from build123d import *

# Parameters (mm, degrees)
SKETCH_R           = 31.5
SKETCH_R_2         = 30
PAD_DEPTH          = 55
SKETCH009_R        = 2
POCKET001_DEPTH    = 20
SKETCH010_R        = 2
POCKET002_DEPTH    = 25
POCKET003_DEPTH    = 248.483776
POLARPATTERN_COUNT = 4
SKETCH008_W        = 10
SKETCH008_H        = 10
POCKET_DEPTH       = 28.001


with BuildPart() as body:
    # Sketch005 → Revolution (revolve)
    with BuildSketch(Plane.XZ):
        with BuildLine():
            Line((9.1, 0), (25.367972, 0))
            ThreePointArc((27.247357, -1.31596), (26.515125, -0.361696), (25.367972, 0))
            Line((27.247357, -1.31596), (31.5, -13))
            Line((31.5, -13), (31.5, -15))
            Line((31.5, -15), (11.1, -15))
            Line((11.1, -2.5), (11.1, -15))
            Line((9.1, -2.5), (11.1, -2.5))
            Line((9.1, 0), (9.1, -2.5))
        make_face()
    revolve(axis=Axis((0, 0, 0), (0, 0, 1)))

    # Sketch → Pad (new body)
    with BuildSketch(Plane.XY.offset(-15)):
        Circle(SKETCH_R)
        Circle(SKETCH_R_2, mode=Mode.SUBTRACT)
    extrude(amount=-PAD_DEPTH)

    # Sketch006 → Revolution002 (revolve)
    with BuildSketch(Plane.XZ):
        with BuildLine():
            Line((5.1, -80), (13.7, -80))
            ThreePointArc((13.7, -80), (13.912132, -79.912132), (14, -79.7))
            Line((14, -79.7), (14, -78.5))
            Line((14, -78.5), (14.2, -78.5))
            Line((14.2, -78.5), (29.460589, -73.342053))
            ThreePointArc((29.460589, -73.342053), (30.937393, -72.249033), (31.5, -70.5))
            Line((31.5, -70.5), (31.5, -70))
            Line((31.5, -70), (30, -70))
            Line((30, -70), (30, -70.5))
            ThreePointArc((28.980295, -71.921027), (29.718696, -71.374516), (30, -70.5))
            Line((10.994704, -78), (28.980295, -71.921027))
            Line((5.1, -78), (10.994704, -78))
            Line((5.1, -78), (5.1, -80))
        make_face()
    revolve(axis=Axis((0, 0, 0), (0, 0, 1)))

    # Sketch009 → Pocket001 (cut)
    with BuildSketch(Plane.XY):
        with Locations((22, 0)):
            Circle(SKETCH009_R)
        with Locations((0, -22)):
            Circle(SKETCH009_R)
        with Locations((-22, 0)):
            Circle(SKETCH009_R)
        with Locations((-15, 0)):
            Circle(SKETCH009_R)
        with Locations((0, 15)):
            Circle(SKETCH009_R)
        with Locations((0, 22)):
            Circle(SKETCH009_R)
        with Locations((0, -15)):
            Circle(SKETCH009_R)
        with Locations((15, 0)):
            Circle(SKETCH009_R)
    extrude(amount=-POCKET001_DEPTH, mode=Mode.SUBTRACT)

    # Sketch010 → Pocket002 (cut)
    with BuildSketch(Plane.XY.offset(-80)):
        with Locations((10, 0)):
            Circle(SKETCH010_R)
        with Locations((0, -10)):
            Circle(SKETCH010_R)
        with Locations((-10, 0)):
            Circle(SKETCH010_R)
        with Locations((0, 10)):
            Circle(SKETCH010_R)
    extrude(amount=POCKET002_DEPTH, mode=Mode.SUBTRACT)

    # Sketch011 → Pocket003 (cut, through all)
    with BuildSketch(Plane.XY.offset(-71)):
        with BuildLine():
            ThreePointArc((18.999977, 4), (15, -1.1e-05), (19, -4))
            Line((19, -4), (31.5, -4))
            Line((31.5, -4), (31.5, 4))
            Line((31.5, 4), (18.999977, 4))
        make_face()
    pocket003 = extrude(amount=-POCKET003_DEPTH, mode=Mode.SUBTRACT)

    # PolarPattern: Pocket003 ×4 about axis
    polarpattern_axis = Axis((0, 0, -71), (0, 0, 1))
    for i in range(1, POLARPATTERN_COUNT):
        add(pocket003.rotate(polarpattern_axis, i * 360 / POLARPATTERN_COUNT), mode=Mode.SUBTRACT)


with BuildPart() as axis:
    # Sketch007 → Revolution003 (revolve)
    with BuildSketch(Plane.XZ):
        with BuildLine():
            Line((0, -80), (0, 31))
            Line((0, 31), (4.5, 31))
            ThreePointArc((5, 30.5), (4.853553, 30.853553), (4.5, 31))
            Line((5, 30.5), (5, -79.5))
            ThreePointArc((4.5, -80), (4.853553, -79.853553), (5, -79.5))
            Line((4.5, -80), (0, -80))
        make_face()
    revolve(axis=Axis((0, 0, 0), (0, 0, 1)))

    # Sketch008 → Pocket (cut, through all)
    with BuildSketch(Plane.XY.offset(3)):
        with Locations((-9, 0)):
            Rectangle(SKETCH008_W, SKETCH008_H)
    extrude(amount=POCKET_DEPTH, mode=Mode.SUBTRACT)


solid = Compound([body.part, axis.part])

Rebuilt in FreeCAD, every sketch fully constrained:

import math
import FreeCAD as App
import Part
import Sketcher
Q = App.Units.Quantity


def add_polygon(sketch, points):
    """Adds a closed chain of lines whose ends are joined by coincident constraints."""
    first, n = sketch.GeometryCount, len(points)
    for a, b in zip(points, points[1:] + points[:1]):
        sketch.addGeometry(Part.LineSegment(App.Vector(*a, 0), App.Vector(*b, 0)), False)
    for i in range(n):
        sketch.addConstraint(Sketcher.Constraint("Coincident", first + i, 2, first + (i + 1) % n, 1))

doc = App.newDocument("Part")
params = doc.addObject("Spreadsheet::Sheet", "Params")
for row, (alias, value) in enumerate([
    ("sketch1_radius", "1.999999 mm"),
    ("sketch1_width", "2 mm"),
    ("sketch1_width2", "20.4 mm"),
    ("sketch1_height", "2.5 mm"),
    ("sketch1_height2", "12.5 mm"),
    ("revolution_angle", "360 deg"),
    ("sketch2_diameter", "63 mm"),
    ("sketch2_diameter2", "60 mm"),
    ("pad1_length", "55 mm"),
    ("sketch3_radius", "0.3 mm"),
    ("sketch3_height", "2 mm"),
    ("sketch3_width", "8.6 mm"),
    ("sketch3_width2", "0.2 mm"),
    ("sketch3_width3", "1.5 mm"),
    ("revolution2_angle", "360 deg"),
    ("sketch4_diameter", "4 mm"),
    ("pocket1_length", "20 mm"),
    ("sketch5_diameter", "4 mm"),
    ("pocket2_length", "25 mm"),
    ("sketch6_radius", "4 mm"),
    ("sketch6_width", "12.5 mm"),
    ("sketch7_radius", "0.500001 mm"),
    ("sketch7_height", "111 mm"),
    ("sketch7_height2", "110 mm"),
    ("sketch7_width", "4.5 mm"),
    ("revolution3_angle", "360 deg"),
    ("sketch8_width", "10 mm"),
], start=1):
    params.set(f"A{row}", alias)
    params.set(f"B{row}", "=" + value)
    params.setAlias(f"B{row}", alias)

body = doc.addObject("PartDesign::Body", "Body")

# Sketch on XZ plane
sketch1 = body.newObject("Sketcher::SketchObject", "Sketch")
sketch1.AttachmentSupport = (doc.getObject("XZ_Plane"), [""])
sketch1.MapMode = "FlatFace"
sketch1.addGeometry([
    Part.LineSegment(App.Vector(25.4, 0, 0), App.Vector(9.1, 0, 0)),  # 0
    Part.LineSegment(App.Vector(9.1, 0, 0), App.Vector(9.1, -2.5, 0)),  # 1
    Part.LineSegment(App.Vector(9.1, -2.5, 0), App.Vector(11.1, -2.5, 0)),  # 2
    Part.LineSegment(App.Vector(11.1, -2.5, 0), App.Vector(11.1, -15, 0)),  # 3
    Part.LineSegment(App.Vector(11.1, -15, 0), App.Vector(31.5, -15, 0)),  # 4
    Part.LineSegment(App.Vector(31.5, -15, 0), App.Vector(31.5, -13, 0)),  # 5
    Part.LineSegment(App.Vector(31.5, -13, 0), App.Vector(27.2, -1.3, 0)),  # 6
    Part.ArcOfCircle(Part.Circle(App.Vector(25.4, -2, 0), App.Vector(0, 0, 1), 2), math.radians(20), math.radians(90)),  # 7
], False)
sketch1.addConstraint([
    Sketcher.Constraint("Coincident", 0, 2, 1, 1),
    Sketcher.Constraint("Coincident", 1, 2, 2, 1),
    Sketcher.Constraint("Coincident", 2, 2, 3, 1),
    Sketcher.Constraint("Coincident", 3, 2, 4, 1),
    Sketcher.Constraint("Coincident", 4, 2, 5, 1),
    Sketcher.Constraint("Coincident", 5, 2, 6, 1),
    Sketcher.Constraint("Tangent", 6, 2, 7, 1),
    Sketcher.Constraint("Tangent", 7, 2, 0, 1),
    Sketcher.Constraint("Horizontal", 0),
    Sketcher.Constraint("Vertical", 1),
    Sketcher.Constraint("Horizontal", 2),
    Sketcher.Constraint("Vertical", 3),
    Sketcher.Constraint("Horizontal", 4),
    Sketcher.Constraint("Vertical", 5),
    Sketcher.Constraint("PointOnObject", 0, 2, -1),
    Sketcher.Constraint("Equal", 2, 5),
    Sketcher.Constraint("Radius", 7, Q("1.999999 mm")),
    Sketcher.Constraint("DistanceX", 2, 1, 2, 2, Q("2 mm")),
    Sketcher.Constraint("Angle", 6, Q("110.000001 deg")),
    Sketcher.Constraint("DistanceX", 4, 1, 4, 2, Q("20.4 mm")),
    Sketcher.Constraint("DistanceY", 1, 2, 1, 1, Q("2.5 mm")),
    Sketcher.Constraint("DistanceY", 3, 2, 3, 1, Q("12.5 mm")),
    Sketcher.Constraint("DistanceX", -1, 1, 0, 2, Q("9.1 mm")),
])
sketch1.setExpression("Constraints[16]", "Params.sketch1_radius")
sketch1.setExpression("Constraints[17]", "Params.sketch1_width")
sketch1.setExpression("Constraints[19]", "Params.sketch1_width2")
sketch1.setExpression("Constraints[20]", "Params.sketch1_height")
sketch1.setExpression("Constraints[21]", "Params.sketch1_height2")
revolution = body.newObject("PartDesign::Revolution", "Revolution")
revolution.Profile = sketch1
revolution.ReferenceAxis = (sketch1, ["V_Axis"])
revolution.setExpression("Angle", "Params.revolution_angle")

# Sketch on XY plane
sketch2 = body.newObject("Sketcher::SketchObject", "Sketch001")
sketch2.AttachmentSupport = (doc.getObject("XY_Plane"), [""])
sketch2.MapMode = "FlatFace"
sketch2.AttachmentOffset = App.Placement(App.Vector(0, 0, -15), App.Rotation())
sketch2.addGeometry([
    Part.Circle(App.Vector(0, 0, 0), App.Vector(0, 0, 1), 32),
    Part.Circle(App.Vector(0, 0, 0), App.Vector(0, 0, 1), 30),
], False)
sketch2.addConstraint([
    Sketcher.Constraint("Coincident", 0, 3, -1, 1),
    Sketcher.Constraint("Coincident", 1, 3, -1, 1),
    Sketcher.Constraint("Diameter", 0, Q("63 mm")),
    Sketcher.Constraint("Diameter", 1, Q("60 mm")),
])
sketch2.setExpression("Constraints[2]", "Params.sketch2_diameter")
sketch2.setExpression("Constraints[3]", "Params.sketch2_diameter2")
pad1 = body.newObject("PartDesign::Pad", "Pad")
pad1.Profile = sketch2
pad1.setExpression("Length", "Params.pad1_length")
pad1.Reversed = True

# Sketch on XZ plane
sketch3 = body.newObject("Sketcher::SketchObject", "Sketch002")
sketch3.AttachmentSupport = (doc.getObject("XZ_Plane"), [""])
sketch3.MapMode = "FlatFace"
sketch3.addGeometry([
    Part.LineSegment(App.Vector(5.1, -80, 0), App.Vector(13.7, -80, 0)),  # 0
    Part.ArcOfCircle(Part.Circle(App.Vector(13.7, -79.7, 0), App.Vector(0, 0, 1), 0.3), math.radians(-90), math.radians(0)),  # 1
    Part.LineSegment(App.Vector(14, -79.7, 0), App.Vector(14, -78.5, 0)),  # 2
    Part.LineSegment(App.Vector(14, -78.5, 0), App.Vector(14.2, -78.5, 0)),  # 3
    Part.LineSegment(App.Vector(14.2, -78.5, 0), App.Vector(29.46, -73.34, 0)),  # 4
    Part.ArcOfCircle(Part.Circle(App.Vector(28.5, -70.5, 0), App.Vector(0, 0, 1), 3), math.radians(-71), math.radians(0)),  # 5
    Part.LineSegment(App.Vector(31.5, -70.5, 0), App.Vector(31.5, -70, 0)),  # 6
    Part.LineSegment(App.Vector(31.5, -70, 0), App.Vector(30, -70, 0)),  # 7
    Part.LineSegment(App.Vector(30, -70, 0), App.Vector(30, -70.5, 0)),  # 8
    Part.ArcOfCircle(Part.Circle(App.Vector(28.5, -70.5, 0), App.Vector(0, 0, 1), 1.5), math.radians(-71), math.radians(0)),  # 9
    Part.LineSegment(App.Vector(28.98, -71.92, 0), App.Vector(10.99, -78, 0)),  # 10
    Part.LineSegment(App.Vector(10.99, -78, 0), App.Vector(5.1, -78, 0)),  # 11
    Part.LineSegment(App.Vector(5.1, -78, 0), App.Vector(5.1, -80, 0)),  # 12
], False)
sketch3.addConstraint([
    Sketcher.Constraint("Tangent", 0, 2, 1, 1),
    Sketcher.Constraint("Tangent", 1, 2, 2, 1),
    Sketcher.Constraint("Coincident", 2, 2, 3, 1),
    Sketcher.Constraint("Coincident", 3, 2, 4, 1),
    Sketcher.Constraint("Tangent", 4, 2, 5, 1),
    Sketcher.Constraint("Tangent", 5, 2, 6, 1),
    Sketcher.Constraint("Coincident", 6, 2, 7, 1),
    Sketcher.Constraint("Coincident", 7, 2, 8, 1),
    Sketcher.Constraint("Tangent", 8, 2, 9, 2),
    Sketcher.Constraint("Tangent", 9, 1, 10, 1),
    Sketcher.Constraint("Coincident", 10, 2, 11, 1),
    Sketcher.Constraint("Coincident", 11, 2, 12, 1),
    Sketcher.Constraint("Coincident", 12, 2, 0, 1),
    Sketcher.Constraint("Horizontal", 0),
    Sketcher.Constraint("Vertical", 2),
    Sketcher.Constraint("Horizontal", 3),
    Sketcher.Constraint("Vertical", 6),
    Sketcher.Constraint("Horizontal", 7),
    Sketcher.Constraint("Vertical", 8),
    Sketcher.Constraint("Horizontal", 11),
    Sketcher.Constraint("Vertical", 12),
    Sketcher.Constraint("Coincident", 9, 3, 5, 3),
    Sketcher.Constraint("Parallel", 4, 10),
    Sketcher.Constraint("Radius", 1, Q("0.3 mm")),
    Sketcher.Constraint("DistanceY", 12, 2, 12, 1, Q("2 mm")),
    Sketcher.Constraint("DistanceX", 0, 1, 0, 2, Q("8.6 mm")),
    Sketcher.Constraint("DistanceX", 3, 1, 3, 2, Q("0.2 mm")),
    Sketcher.Constraint("DistanceX", 7, 2, 7, 1, Q("1.5 mm")),
    Sketcher.Constraint("DistanceY", 2, 1, 2, 2, Q("1.2 mm")),
    Sketcher.Constraint("DistanceY", 6, 1, 6, 2, Q("0.5 mm")),
    Sketcher.Constraint("DistanceY", 0, 2, -1, 1, Q("80 mm")),
    Sketcher.Constraint("DistanceX", -1, 1, 1, 2, Q("14 mm")),
    Sketcher.Constraint("DistanceY", 6, 2, -1, 1, Q("70 mm")),
    Sketcher.Constraint("DistanceX", -1, 1, 7, 2, Q("30 mm")),
    Sketcher.Constraint("Radius", 5, Q("2.999998 mm")),
])
sketch3.setExpression("Constraints[23]", "Params.sketch3_radius")
sketch3.setExpression("Constraints[24]", "Params.sketch3_height")
sketch3.setExpression("Constraints[25]", "Params.sketch3_width")
sketch3.setExpression("Constraints[26]", "Params.sketch3_width2")
sketch3.setExpression("Constraints[27]", "Params.sketch3_width3")
revolution2 = body.newObject("PartDesign::Revolution", "Revolution001")
revolution2.Profile = sketch3
revolution2.ReferenceAxis = (sketch3, ["V_Axis"])
revolution2.setExpression("Angle", "Params.revolution2_angle")

# Sketch on XY plane
sketch4 = body.newObject("Sketcher::SketchObject", "Sketch003")
sketch4.AttachmentSupport = (doc.getObject("XY_Plane"), [""])
sketch4.MapMode = "FlatFace"
sketch4.addGeometry([
    Part.Circle(App.Vector(22, 0, 0), App.Vector(0, 0, 1), 2),  # 0
    Part.Circle(App.Vector(0, -22, 0), App.Vector(0, 0, 1), 2),  # 1
    Part.Circle(App.Vector(-22, 0, 0), App.Vector(0, 0, 1), 2),  # 2
    Part.Circle(App.Vector(-15, 0, 0), App.Vector(0, 0, 1), 2),  # 3
    Part.Circle(App.Vector(0, 15, 0), App.Vector(0, 0, 1), 2),  # 4
    Part.Circle(App.Vector(0, 22, 0), App.Vector(0, 0, 1), 2),  # 5
    Part.Circle(App.Vector(0, -15, 0), App.Vector(0, 0, 1), 2),  # 6
    Part.Circle(App.Vector(15, 0, 0), App.Vector(0, 0, 1), 2),  # 7
], False)
sketch4.addConstraint([
    Sketcher.Constraint("Equal", 0, 1),
    Sketcher.Constraint("Equal", 1, 2),
    Sketcher.Constraint("Equal", 2, 3),
    Sketcher.Constraint("Equal", 3, 4),
    Sketcher.Constraint("Equal", 4, 5),
    Sketcher.Constraint("Equal", 5, 6),
    Sketcher.Constraint("Equal", 6, 7),
    Sketcher.Constraint("Symmetric", 0, 3, 2, 3, -1, 1),
    Sketcher.Constraint("Symmetric", 1, 3, 5, 3, -1, 1),
    Sketcher.Constraint("Symmetric", 4, 3, 6, 3, -1, 1),
    Sketcher.Constraint("Symmetric", 3, 3, 7, 3, -1, 1),
    Sketcher.Constraint("PointOnObject", 0, 3, -1),
    Sketcher.Constraint("PointOnObject", 1, 3, -2),
    Sketcher.Constraint("PointOnObject", 3, 3, -1),
    Sketcher.Constraint("PointOnObject", 4, 3, -2),
    Sketcher.Constraint("Diameter", 0, Q("4 mm")),
    Sketcher.Constraint("DistanceX", -1, 1, 0, 3, Q("22 mm")),
    Sketcher.Constraint("DistanceY", 1, 3, -1, 1, Q("22 mm")),
    Sketcher.Constraint("DistanceX", 3, 3, -1, 1, Q("15 mm")),
    Sketcher.Constraint("DistanceY", -1, 1, 4, 3, Q("15 mm")),
])
sketch4.setExpression("Constraints[15]", "Params.sketch4_diameter")
pocket1 = body.newObject("PartDesign::Pocket", "Pocket")
pocket1.Profile = sketch4
pocket1.setExpression("Length", "Params.pocket1_length")

# Sketch on XY plane
sketch5 = body.newObject("Sketcher::SketchObject", "Sketch004")
sketch5.AttachmentSupport = (doc.getObject("XY_Plane"), [""])
sketch5.MapMode = "FlatFace"
sketch5.AttachmentOffset = App.Placement(App.Vector(0, 0, -80), App.Rotation())
sketch5.addGeometry([
    Part.Circle(App.Vector(10, 0, 0), App.Vector(0, 0, 1), 2),
    Part.Circle(App.Vector(0, -10, 0), App.Vector(0, 0, 1), 2),
    Part.Circle(App.Vector(-10, 0, 0), App.Vector(0, 0, 1), 2),
    Part.Circle(App.Vector(0, 10, 0), App.Vector(0, 0, 1), 2),
], False)
sketch5.addConstraint([
    Sketcher.Constraint("Equal", 0, 1),
    Sketcher.Constraint("Equal", 1, 2),
    Sketcher.Constraint("Equal", 2, 3),
    Sketcher.Constraint("Symmetric", 0, 3, 2, 3, -1, 1),
    Sketcher.Constraint("Symmetric", 1, 3, 3, 3, -1, 1),
    Sketcher.Constraint("PointOnObject", 0, 3, -1),
    Sketcher.Constraint("PointOnObject", 1, 3, -2),
    Sketcher.Constraint("Diameter", 0, Q("4 mm")),
    Sketcher.Constraint("DistanceX", -1, 1, 0, 3, Q("10 mm")),
    Sketcher.Constraint("DistanceY", 1, 3, -1, 1, Q("10 mm")),
])
sketch5.setExpression("Constraints[7]", "Params.sketch5_diameter")
pocket2 = body.newObject("PartDesign::Pocket", "Pocket001")
pocket2.Profile = sketch5
pocket2.setExpression("Length", "Params.pocket2_length")
pocket2.Reversed = True

# Sketch on XY plane
sketch6 = body.newObject("Sketcher::SketchObject", "Sketch005")
sketch6.AttachmentSupport = (doc.getObject("XY_Plane"), [""])
sketch6.MapMode = "FlatFace"
sketch6.AttachmentOffset = App.Placement(App.Vector(0, 0, -71), App.Rotation())
sketch6.addGeometry([
    Part.ArcOfCircle(Part.Circle(App.Vector(19, 0, 0), App.Vector(0, 0, 1), 4), math.radians(90), math.radians(270)),
    Part.LineSegment(App.Vector(19, -4, 0), App.Vector(31.5, -4, 0)),
    Part.LineSegment(App.Vector(31.5, -4, 0), App.Vector(31.5, 4, 0)),
    Part.LineSegment(App.Vector(31.5, 4, 0), App.Vector(19, 4, 0)),
], False)
sketch6.addConstraint([
    Sketcher.Constraint("Tangent", 0, 2, 1, 1),
    Sketcher.Constraint("Coincident", 1, 2, 2, 1),
    Sketcher.Constraint("Coincident", 2, 2, 3, 1),
    Sketcher.Constraint("Coincident", 3, 2, 0, 1),
    Sketcher.Constraint("Horizontal", 1),
    Sketcher.Constraint("Vertical", 2),
    Sketcher.Constraint("Horizontal", 3),
    Sketcher.Constraint("PointOnObject", 0, 3, -1),
    Sketcher.Constraint("Radius", 0, Q("4 mm")),
    Sketcher.Constraint("DistanceX", 1, 1, 1, 2, Q("12.5 mm")),
    Sketcher.Constraint("DistanceX", -1, 1, 0, 3, Q("19 mm")),
    Sketcher.Constraint("DistanceX", 3, 2, 3, 1, Q("12.500023 mm")),
])
sketch6.setExpression("Constraints[8]", "Params.sketch6_radius")
sketch6.setExpression("Constraints[9]", "Params.sketch6_width")
pocket3 = body.newObject("PartDesign::Pocket", "Pocket002")
pocket3.Profile = sketch6
pocket3.Type = "ThroughAll"
doc.recompute()

polarpattern = body.newObject("PartDesign::PolarPattern", "PolarPattern")
polarpattern.Originals = [pocket3]
polarpattern.Axis = (doc.getObject("Z_Axis"), [""])
polarpattern.Angle = 360
polarpattern.Occurrences = 4
body.Tip = polarpattern
body2 = doc.addObject("PartDesign::Body", "Body001")

# Sketch on XZ plane
sketch7 = body2.newObject("Sketcher::SketchObject", "Sketch006")
sketch7.AttachmentSupport = (doc.getObject("XZ_Plane001"), [""])
sketch7.MapMode = "FlatFace"
sketch7.addGeometry([
    Part.LineSegment(App.Vector(0, 31, 0), App.Vector(0, -80, 0)),  # 0
    Part.LineSegment(App.Vector(0, -80, 0), App.Vector(4.5, -80, 0)),  # 1
    Part.ArcOfCircle(Part.Circle(App.Vector(4.5, -79.5, 0), App.Vector(0, 0, 1), 0.5), math.radians(-90), math.radians(0)),  # 2
    Part.LineSegment(App.Vector(5, -79.5, 0), App.Vector(5, 30.5, 0)),  # 3
    Part.ArcOfCircle(Part.Circle(App.Vector(4.5, 30.5, 0), App.Vector(0, 0, 1), 0.5), math.radians(0), math.radians(90)),  # 4
    Part.LineSegment(App.Vector(4.5, 31, 0), App.Vector(0, 31, 0)),  # 5
], False)
sketch7.addConstraint([
    Sketcher.Constraint("Coincident", 0, 2, 1, 1),
    Sketcher.Constraint("Coincident", 1, 2, 2, 1),
    Sketcher.Constraint("Coincident", 2, 2, 3, 1),
    Sketcher.Constraint("Coincident", 3, 2, 4, 1),
    Sketcher.Constraint("Coincident", 4, 2, 5, 1),
    Sketcher.Constraint("Coincident", 5, 2, 0, 1),
    Sketcher.Constraint("Vertical", 0),
    Sketcher.Constraint("Horizontal", 1),
    Sketcher.Constraint("Vertical", 3),
    Sketcher.Constraint("Horizontal", 5),
    Sketcher.Constraint("Equal", 2, 4),
    Sketcher.Constraint("PointOnObject", 0, 2, -2),
    Sketcher.Constraint("Horizontal", 4, 3, 3, 2),
    Sketcher.Constraint("Vertical", 4, 3, 1, 2),
    Sketcher.Constraint("Vertical", 1, 2, 4, 2),
    Sketcher.Constraint("Radius", 2, Q("0.500001 mm")),
    Sketcher.Constraint("DistanceY", 0, 2, 0, 1, Q("111 mm")),
    Sketcher.Constraint("DistanceY", 3, 1, 3, 2, Q("110 mm")),
    Sketcher.Constraint("DistanceX", 1, 1, 1, 2, Q("4.5 mm")),
    Sketcher.Constraint("DistanceY", 0, 2, -1, 1, Q("80 mm")),
])
sketch7.setExpression("Constraints[15]", "Params.sketch7_radius")
sketch7.setExpression("Constraints[16]", "Params.sketch7_height")
sketch7.setExpression("Constraints[17]", "Params.sketch7_height2")
sketch7.setExpression("Constraints[18]", "Params.sketch7_width")
revolution3 = body2.newObject("PartDesign::Revolution", "Revolution002")
revolution3.Profile = sketch7
revolution3.ReferenceAxis = (sketch7, ["V_Axis"])
revolution3.setExpression("Angle", "Params.revolution3_angle")

# Sketch on XY plane
sketch8 = body2.newObject("Sketcher::SketchObject", "Sketch007")
sketch8.AttachmentSupport = (doc.getObject("XY_Plane001"), [""])
sketch8.MapMode = "FlatFace"
sketch8.AttachmentOffset = App.Placement(App.Vector(0, 0, 3), App.Rotation())
add_polygon(sketch8, [(-14, 5), (-14, -5), (-4, -5), (-4, 5)])  # lines 0-3
sketch8.addConstraint([
    Sketcher.Constraint("Vertical", 0),
    Sketcher.Constraint("Horizontal", 1),
    Sketcher.Constraint("Vertical", 2),
    Sketcher.Constraint("Horizontal", 3),
    Sketcher.Constraint("Equal", 3, 0),
    Sketcher.Constraint("DistanceX", 1, 1, 1, 2, Q("10 mm")),
    Sketcher.Constraint("DistanceX", 0, 2, -1, 1, Q("14 mm")),
    Sketcher.Constraint("DistanceY", 0, 2, -1, 1, Q("5 mm")),
])
sketch8.setExpression("Constraints[9]", "Params.sketch8_width")
pocket4 = body2.newObject("PartDesign::Pocket", "Pocket003")
pocket4.Profile = sketch8
pocket4.Type = "ThroughAll"
pocket4.Reversed = True

doc.recompute()
